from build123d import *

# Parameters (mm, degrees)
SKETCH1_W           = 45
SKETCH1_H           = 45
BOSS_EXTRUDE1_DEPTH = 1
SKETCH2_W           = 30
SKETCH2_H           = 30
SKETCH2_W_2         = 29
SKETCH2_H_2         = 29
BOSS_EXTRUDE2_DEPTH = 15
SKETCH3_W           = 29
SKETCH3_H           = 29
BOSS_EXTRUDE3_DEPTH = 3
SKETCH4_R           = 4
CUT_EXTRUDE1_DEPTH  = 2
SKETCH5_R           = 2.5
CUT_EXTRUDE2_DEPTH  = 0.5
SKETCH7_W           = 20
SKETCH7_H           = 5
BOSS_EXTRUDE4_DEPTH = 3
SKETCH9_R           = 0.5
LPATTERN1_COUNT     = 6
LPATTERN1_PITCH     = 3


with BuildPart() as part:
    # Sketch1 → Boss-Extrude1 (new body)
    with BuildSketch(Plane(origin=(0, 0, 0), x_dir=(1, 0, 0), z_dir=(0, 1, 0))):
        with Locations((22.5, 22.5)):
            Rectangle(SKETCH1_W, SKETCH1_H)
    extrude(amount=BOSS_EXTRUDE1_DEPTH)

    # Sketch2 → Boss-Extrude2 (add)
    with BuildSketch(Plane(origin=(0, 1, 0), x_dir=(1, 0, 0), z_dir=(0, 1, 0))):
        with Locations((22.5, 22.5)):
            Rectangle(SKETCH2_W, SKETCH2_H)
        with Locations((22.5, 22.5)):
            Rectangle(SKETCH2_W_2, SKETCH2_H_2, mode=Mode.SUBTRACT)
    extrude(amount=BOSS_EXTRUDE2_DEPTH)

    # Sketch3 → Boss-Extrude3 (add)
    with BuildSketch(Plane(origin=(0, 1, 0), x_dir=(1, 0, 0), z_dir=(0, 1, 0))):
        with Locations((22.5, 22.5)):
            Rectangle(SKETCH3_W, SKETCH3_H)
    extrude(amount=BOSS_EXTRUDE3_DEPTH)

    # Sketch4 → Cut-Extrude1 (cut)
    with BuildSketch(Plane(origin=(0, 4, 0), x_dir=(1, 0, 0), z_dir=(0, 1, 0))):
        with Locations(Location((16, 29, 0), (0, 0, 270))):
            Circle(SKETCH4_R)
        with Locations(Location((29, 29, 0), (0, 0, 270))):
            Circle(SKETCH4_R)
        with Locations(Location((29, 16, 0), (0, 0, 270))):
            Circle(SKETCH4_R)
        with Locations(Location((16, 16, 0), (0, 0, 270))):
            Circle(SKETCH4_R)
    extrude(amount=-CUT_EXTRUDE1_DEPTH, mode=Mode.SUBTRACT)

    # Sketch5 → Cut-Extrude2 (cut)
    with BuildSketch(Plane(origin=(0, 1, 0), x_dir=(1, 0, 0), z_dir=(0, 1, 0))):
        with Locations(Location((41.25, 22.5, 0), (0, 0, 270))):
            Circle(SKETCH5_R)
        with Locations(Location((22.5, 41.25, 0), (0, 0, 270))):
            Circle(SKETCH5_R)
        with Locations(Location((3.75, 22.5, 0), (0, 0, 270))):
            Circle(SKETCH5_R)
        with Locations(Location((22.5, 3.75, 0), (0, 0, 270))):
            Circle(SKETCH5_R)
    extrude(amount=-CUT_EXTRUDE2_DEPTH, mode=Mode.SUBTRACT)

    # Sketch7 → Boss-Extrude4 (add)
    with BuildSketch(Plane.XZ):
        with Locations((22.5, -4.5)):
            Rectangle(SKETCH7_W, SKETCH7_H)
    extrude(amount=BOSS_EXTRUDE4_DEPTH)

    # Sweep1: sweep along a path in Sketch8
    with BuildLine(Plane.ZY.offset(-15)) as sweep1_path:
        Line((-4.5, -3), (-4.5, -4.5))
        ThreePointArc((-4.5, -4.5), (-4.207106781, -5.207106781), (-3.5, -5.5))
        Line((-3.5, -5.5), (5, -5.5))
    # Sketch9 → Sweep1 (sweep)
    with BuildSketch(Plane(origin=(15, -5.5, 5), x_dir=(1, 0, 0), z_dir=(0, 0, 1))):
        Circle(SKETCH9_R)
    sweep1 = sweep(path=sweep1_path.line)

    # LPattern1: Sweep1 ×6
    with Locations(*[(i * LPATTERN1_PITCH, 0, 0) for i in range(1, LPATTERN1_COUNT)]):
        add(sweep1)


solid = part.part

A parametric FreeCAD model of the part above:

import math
import FreeCAD as App
import Part
import Sketcher

V = App.Vector

doc = App.newDocument("Part")
body = doc.addObject("PartDesign::Body", "Body")

# Sketch on XZ plane
sketch1 = body.newObject("Sketcher::SketchObject", "Sketch")
sketch1.AttachmentSupport = (doc.getObject("XZ_Plane"), [""])
sketch1.MapMode = "FlatFace"
sketch1.addGeometry([
    Part.LineSegment(V(0, -45, 0), V(0, 0, 0)),
    Part.LineSegment(V(0, 0, 0), V(45, 0, 0)),
    Part.LineSegment(V(45, 0, 0), V(45, -45, 0)),
    Part.LineSegment(V(45, -45, 0), V(0, -45, 0)),
], False)
sketch1.addConstraint([
    Sketcher.Constraint("Coincident", 0, 2, 1, 1),
    Sketcher.Constraint("Coincident", 1, 2, 2, 1),
    Sketcher.Constraint("Coincident", 2, 2, 3, 1),
    Sketcher.Constraint("Coincident", 3, 2, 0, 1),
    Sketcher.Constraint("Vertical", 0),
    Sketcher.Constraint("Horizontal", 1),
    Sketcher.Constraint("Vertical", 2),
    Sketcher.Constraint("Horizontal", 3),
    Sketcher.Constraint("Coincident", 0, 2, -1, 1),
    Sketcher.Constraint("Equal", 3, 0),
    Sketcher.Constraint("DistanceX", 1, 1, 1, 2, 45.0),
])
pad1 = body.newObject("PartDesign::Pad", "Pad")
pad1.Profile = sketch1
pad1.Length = 1
pad1.Reversed = True

# Sketch on XZ plane
sketch2 = body.newObject("Sketcher::SketchObject", "Sketch001")
sketch2.AttachmentSupport = (doc.getObject("XZ_Plane"), [""])
sketch2.MapMode = "FlatFace"
sketch2.AttachmentOffset = App.Placement(V(0, 0, -1), App.Rotation())
sketch2.addGeometry([
    Part.LineSegment(V(8, -38, 0), V(8, -8, 0)),  # 0
    Part.LineSegment(V(8, -8, 0), V(38, -8, 0)),  # 1
    Part.LineSegment(V(38, -8, 0), V(38, -38, 0)),  # 2
    Part.LineSegment(V(38, -38, 0), V(8, -38, 0)),  # 3
    Part.LineSegment(V(37, -8, 0), V(8, -8, 0)),  # 4
    Part.LineSegment(V(8, -8, 0), V(8, -37, 0)),  # 5
    Part.LineSegment(V(8, -37, 0), V(37, -37, 0)),  # 6
    Part.LineSegment(V(37, -37, 0), V(37, -8, 0)),  # 7
], False)
sketch2.addConstraint([
    Sketcher.Constraint("Coincident", 0, 2, 1, 1),
    Sketcher.Constraint("Coincident", 1, 2, 2, 1),
    Sketcher.Constraint("Coincident", 2, 2, 3, 1),
    Sketcher.Constraint("Coincident", 3, 2, 0, 1),
    Sketcher.Constraint("Coincident", 4, 2, 5, 1),
    Sketcher.Constraint("Coincident", 5, 2, 6, 1),
    Sketcher.Constraint("Coincident", 6, 2, 7, 1),
    Sketcher.Constraint("Coincident", 7, 2, 4, 1),
    Sketcher.Constraint("Vertical", 0),
    Sketcher.Constraint("Horizontal", 1),
    Sketcher.Constraint("Vertical", 2),
    Sketcher.Constraint("Horizontal", 3),
    Sketcher.Constraint("Horizontal", 4),
    Sketcher.Constraint("Vertical", 5),
    Sketcher.Constraint("Horizontal", 6),
    Sketcher.Constraint("Vertical", 7),
    Sketcher.Constraint("Equal", 3, 0),
    Sketcher.Constraint("Equal", 6, 5),
    Sketcher.Constraint("DistanceX", 1, 1, 1, 2, 30.0),
    Sketcher.Constraint("DistanceX", 4, 2, 4, 1, 29.0),
    Sketcher.Constraint("DistanceX", -1, 1, 4, 2, 8.0),
    Sketcher.Constraint("DistanceY", 4, 2, -1, 1, 8.0),
    Sketcher.Constraint("DistanceX", -1, 1, 0, 2, 7.5),
    Sketcher.Constraint("DistanceY", 0, 2, -1, 1, 7.5),
])
pad2 = body.newObject("PartDesign::Pad", "Pad001")
pad2.Profile = sketch2
pad2.Length = 15
pad2.Reversed = True

# Sketch on XZ plane
sketch3 = body.newObject("Sketcher::SketchObject", "Sketch002")
sketch3.AttachmentSupport = (doc.getObject("XZ_Plane"), [""])
sketch3.MapMode = "FlatFace"
sketch3.AttachmentOffset = App.Placement(V(0, 0, -1), App.Rotation())
sketch3.addGeometry([
    Part.LineSegment(V(8, -37, 0), V(8, -8, 0)),
    Part.LineSegment(V(8, -8, 0), V(37, -8, 0)),
    Part.LineSegment(V(37, -8, 0), V(37, -37, 0)),
    Part.LineSegment(V(37, -37, 0), V(8, -37, 0)),
], False)
sketch3.addConstraint([
    Sketcher.Constraint("Coincident", 0, 2, 1, 1),
    Sketcher.Constraint("Coincident", 1, 2, 2, 1),
    Sketcher.Constraint("Coincident", 2, 2, 3, 1),
    Sketcher.Constraint("Coincident", 3, 2, 0, 1),
    Sketcher.Constraint("Vertical", 0),
    Sketcher.Constraint("Horizontal", 1),
    Sketcher.Constraint("Vertical", 2),
    Sketcher.Constraint("Horizontal", 3),
    Sketcher.Constraint("Equal", 3, 0),
    Sketcher.Constraint("DistanceX", 1, 1, 1, 2, 29.0),
    Sketcher.Constraint("DistanceX", -1, 1, 0, 2, 8.0),
    Sketcher.Constraint("DistanceY", 0, 2, -1, 1, 8.0),
])
pad3 = body.newObject("PartDesign::Pad", "Pad002")
pad3.Profile = sketch3
pad3.Length = 3
pad3.Reversed = True

# Sketch on XZ plane
sketch4 = body.newObject("Sketcher::SketchObject", "Sketch003")
sketch4.AttachmentSupport = (doc.getObject("XZ_Plane"), [""])
sketch4.MapMode = "FlatFace"
sketch4.AttachmentOffset = App.Placement(V(0, 0, -4), App.Rotation())
sketch4.addGeometry([
    Part.Circle(V(16, -29, 0), V(0, 0, 1), 4),
    Part.Circle(V(29, -29, 0), V(0, 0, 1), 4),
    Part.Circle(V(29, -16, 0), V(0, 0, 1), 4),
    Part.Circle(V(16, -16, 0), V(0, 0, 1), 4),
], False)
sketch4.addConstraint([
    Sketcher.Constraint("Equal", 0, 1),
    Sketcher.Constraint("Equal", 1, 2),
    Sketcher.Constraint("Equal", 2, 3),
    Sketcher.Constraint("Horizontal", 0, 3, 1, 3),
    Sketcher.Constraint("Horizontal", 2, 3, 3, 3),
    Sketcher.Constraint("Vertical", 1, 3, 2, 3),
    Sketcher.Constraint("Vertical", 0, 3, 3, 3),
    Sketcher.Constraint("Diameter", 0, 8.0),
    Sketcher.Constraint("DistanceX", -1, 1, 0, 3, 16.0),
    Sketcher.Constraint("DistanceY", 0, 3, -1, 1, 29.0),
    Sketcher.Constraint("DistanceX", -1, 1, 1, 3, 29.0),
    Sketcher.Constraint("DistanceY", 2, 3, -1, 1, 16.0),
])
pocket1 = body.newObject("PartDesign::Pocket", "Pocket")
pocket1.Profile = sketch4
pocket1.Length = 2
pocket1.Reversed = True

# Sketch on XZ plane
sketch5 = body.newObject("Sketcher::SketchObject", "Sketch004")
sketch5.AttachmentSupport = (doc.getObject("XZ_Plane"), [""])
sketch5.MapMode = "FlatFace"
sketch5.AttachmentOffset = App.Placement(V(0, 0, -1), App.Rotation())
sketch5.addGeometry([
    Part.Circle(V(41.2, -22.5, 0), V(0, 0, 1), 2.5),
    Part.Circle(V(22.5, -41.2, 0), V(0, 0, 1), 2.5),
    Part.Circle(V(3.8, -22.5, 0), V(0, 0, 1), 2.5),
    Part.Circle(V(22.5, -3.8, 0), V(0, 0, 1), 2.5),
], False)
sketch5.addConstraint([
    Sketcher.Constraint("Equal", 0, 1),
    Sketcher.Constraint("Equal", 1, 2),
    Sketcher.Constraint("Equal", 2, 3),
    Sketcher.Constraint("Horizontal", 0, 3, 2, 3),
    Sketcher.Constraint("Vertical", 1, 3, 3, 3),
    Sketcher.Constraint("Diameter", 0, 5.0),
    Sketcher.Constraint("DistanceY", 0, 3, -1, 1, 22.5),
    Sketcher.Constraint("DistanceX", -1, 1, 1, 3, 22.5),
    Sketcher.Constraint("DistanceX", 2, 3, 0, 3, 37.5),
    Sketcher.Constraint("DistanceY", 1, 3, 3, 3, 37.5),
    Sketcher.Constraint("DistanceX", -1, 1, 0, 3, 41.25),
    Sketcher.Constraint("DistanceY", 1, 3, -1, 1, 41.25),
])
pocket2 = body.newObject("PartDesign::Pocket", "Pocket001")
pocket2.Profile = sketch5
pocket2.Length = 0.5
pocket2.Reversed = True

# Sketch on XZ plane
sketch6 = body.newObject("Sketcher::SketchObject", "Sketch005")
sketch6.AttachmentSupport = (doc.getObject("XZ_Plane"), [""])
sketch6.MapMode = "FlatFace"
sketch6.addGeometry([
    Part.LineSegment(V(12, -2, 0), V(12, -7, 0)),
    Part.LineSegment(V(12, -7, 0), V(32, -7, 0)),
    Part.LineSegment(V(32, -7, 0), V(32, -2, 0)),
    Part.LineSegment(V(32, -2, 0), V(12, -2, 0)),
], False)
sketch6.addConstraint([
    Sketcher.Constraint("Coincident", 0, 2, 1, 1),
    Sketcher.Constraint("Coincident", 1, 2, 2, 1),
    Sketcher.Constraint("Coincident", 2, 2, 3, 1),
    Sketcher.Constraint("Coincident", 3, 2, 0, 1),
    Sketcher.Constraint("Vertical", 0),
    Sketcher.Constraint("Horizontal", 1),
    Sketcher.Constraint("Vertical", 2),
    Sketcher.Constraint("Horizontal", 3),
    Sketcher.Constraint("DistanceX", 1, 1, 1, 2, 20.0),
    Sketcher.Constraint("DistanceY", 0, 2, 0, 1, 5.0),
    Sketcher.Constraint("DistanceY", 0, 2, -1, 1, 7.0),
    Sketcher.Constraint("DistanceX", -1, 1, 0, 2, 12.5),
])
pad4 = body.newObject("PartDesign::Pad", "Pad003")
pad4.Profile = sketch6
pad4.Length = 3

# Sketch on XY plane
sketch7 = body.newObject("Sketcher::SketchObject", "Sketch006")
sketch7.AttachmentSupport = (doc.getObject("XY_Plane"), [""])
sketch7.MapMode = "FlatFace"
sketch7.AttachmentOffset = App.Placement(V(0, 0, 5), App.Rotation())
sketch7.addGeometry(Part.Circle(V(15, -5.5, 0), V(0, 0, 1), 0.5), False)
sketch7.addConstraint([
    Sketcher.Constraint("Diameter", 0, 1.0),
    Sketcher.Constraint("DistanceX", -1, 1, 0, 3, 15.0),
    Sketcher.Constraint("DistanceY", 0, 3, -1, 1, 5.5),
])

# Sketch on YZ plane
sketch8 = body.newObject("Sketcher::SketchObject", "Sketch007")
sketch8.AttachmentSupport = (doc.getObject("YZ_Plane"), [""])
sketch8.MapMode = "FlatFace"
sketch8.AttachmentOffset = App.Placement(V(0, 0, 15), App.Rotation())
sketch8.addGeometry([
    Part.LineSegment(V(-3, -4.5, 0), V(-4.5, -4.5, 0)),
    Part.ArcOfCircle(Part.Circle(V(-4.5, -3.5, 0), V(0, 0, 1), 1), math.radians(-180), math.radians(-90)),
    Part.LineSegment(V(-5.5, -3.5, 0), V(-5.5, 5, 0)),
], False)
sketch8.addConstraint([
    Sketcher.Constraint("Tangent", 0, 2, 1, 2),
    Sketcher.Constraint("Tangent", 1, 1, 2, 1),
    Sketcher.Constraint("Horizontal", 0),
    Sketcher.Constraint("Vertical", 2),
    Sketcher.Constraint("Radius", 1, 1.0),
    Sketcher.Constraint("DistanceX", 0, 2, 0, 1, 1.5),
    Sketcher.Constraint("DistanceY", 2, 1, 2, 2, 8.5),
    Sketcher.Constraint("DistanceX", 0, 1, -1, 1, 3.0),
    Sketcher.Constraint("DistanceY", -1, 1, 2, 2, 5.0),
])
doc.recompute()

additivepipe = body.newObject("PartDesign::AdditivePipe", "AdditivePipe")
additivepipe.Profile = sketch7
additivepipe.Spine = (sketch8, ["Edge1", "Edge2", "Edge3"])
doc.recompute()

linearpattern = body.newObject("PartDesign::LinearPattern", "LinearPattern")
linearpattern.Originals = [additivepipe]
linearpattern.Direction = (doc.getObject("X_Axis"), [""])
linearpattern.Mode = "offset"
linearpattern.Offset = 3
linearpattern.Occurrences = 6
body.Tip = linearpattern

doc.recompute()
